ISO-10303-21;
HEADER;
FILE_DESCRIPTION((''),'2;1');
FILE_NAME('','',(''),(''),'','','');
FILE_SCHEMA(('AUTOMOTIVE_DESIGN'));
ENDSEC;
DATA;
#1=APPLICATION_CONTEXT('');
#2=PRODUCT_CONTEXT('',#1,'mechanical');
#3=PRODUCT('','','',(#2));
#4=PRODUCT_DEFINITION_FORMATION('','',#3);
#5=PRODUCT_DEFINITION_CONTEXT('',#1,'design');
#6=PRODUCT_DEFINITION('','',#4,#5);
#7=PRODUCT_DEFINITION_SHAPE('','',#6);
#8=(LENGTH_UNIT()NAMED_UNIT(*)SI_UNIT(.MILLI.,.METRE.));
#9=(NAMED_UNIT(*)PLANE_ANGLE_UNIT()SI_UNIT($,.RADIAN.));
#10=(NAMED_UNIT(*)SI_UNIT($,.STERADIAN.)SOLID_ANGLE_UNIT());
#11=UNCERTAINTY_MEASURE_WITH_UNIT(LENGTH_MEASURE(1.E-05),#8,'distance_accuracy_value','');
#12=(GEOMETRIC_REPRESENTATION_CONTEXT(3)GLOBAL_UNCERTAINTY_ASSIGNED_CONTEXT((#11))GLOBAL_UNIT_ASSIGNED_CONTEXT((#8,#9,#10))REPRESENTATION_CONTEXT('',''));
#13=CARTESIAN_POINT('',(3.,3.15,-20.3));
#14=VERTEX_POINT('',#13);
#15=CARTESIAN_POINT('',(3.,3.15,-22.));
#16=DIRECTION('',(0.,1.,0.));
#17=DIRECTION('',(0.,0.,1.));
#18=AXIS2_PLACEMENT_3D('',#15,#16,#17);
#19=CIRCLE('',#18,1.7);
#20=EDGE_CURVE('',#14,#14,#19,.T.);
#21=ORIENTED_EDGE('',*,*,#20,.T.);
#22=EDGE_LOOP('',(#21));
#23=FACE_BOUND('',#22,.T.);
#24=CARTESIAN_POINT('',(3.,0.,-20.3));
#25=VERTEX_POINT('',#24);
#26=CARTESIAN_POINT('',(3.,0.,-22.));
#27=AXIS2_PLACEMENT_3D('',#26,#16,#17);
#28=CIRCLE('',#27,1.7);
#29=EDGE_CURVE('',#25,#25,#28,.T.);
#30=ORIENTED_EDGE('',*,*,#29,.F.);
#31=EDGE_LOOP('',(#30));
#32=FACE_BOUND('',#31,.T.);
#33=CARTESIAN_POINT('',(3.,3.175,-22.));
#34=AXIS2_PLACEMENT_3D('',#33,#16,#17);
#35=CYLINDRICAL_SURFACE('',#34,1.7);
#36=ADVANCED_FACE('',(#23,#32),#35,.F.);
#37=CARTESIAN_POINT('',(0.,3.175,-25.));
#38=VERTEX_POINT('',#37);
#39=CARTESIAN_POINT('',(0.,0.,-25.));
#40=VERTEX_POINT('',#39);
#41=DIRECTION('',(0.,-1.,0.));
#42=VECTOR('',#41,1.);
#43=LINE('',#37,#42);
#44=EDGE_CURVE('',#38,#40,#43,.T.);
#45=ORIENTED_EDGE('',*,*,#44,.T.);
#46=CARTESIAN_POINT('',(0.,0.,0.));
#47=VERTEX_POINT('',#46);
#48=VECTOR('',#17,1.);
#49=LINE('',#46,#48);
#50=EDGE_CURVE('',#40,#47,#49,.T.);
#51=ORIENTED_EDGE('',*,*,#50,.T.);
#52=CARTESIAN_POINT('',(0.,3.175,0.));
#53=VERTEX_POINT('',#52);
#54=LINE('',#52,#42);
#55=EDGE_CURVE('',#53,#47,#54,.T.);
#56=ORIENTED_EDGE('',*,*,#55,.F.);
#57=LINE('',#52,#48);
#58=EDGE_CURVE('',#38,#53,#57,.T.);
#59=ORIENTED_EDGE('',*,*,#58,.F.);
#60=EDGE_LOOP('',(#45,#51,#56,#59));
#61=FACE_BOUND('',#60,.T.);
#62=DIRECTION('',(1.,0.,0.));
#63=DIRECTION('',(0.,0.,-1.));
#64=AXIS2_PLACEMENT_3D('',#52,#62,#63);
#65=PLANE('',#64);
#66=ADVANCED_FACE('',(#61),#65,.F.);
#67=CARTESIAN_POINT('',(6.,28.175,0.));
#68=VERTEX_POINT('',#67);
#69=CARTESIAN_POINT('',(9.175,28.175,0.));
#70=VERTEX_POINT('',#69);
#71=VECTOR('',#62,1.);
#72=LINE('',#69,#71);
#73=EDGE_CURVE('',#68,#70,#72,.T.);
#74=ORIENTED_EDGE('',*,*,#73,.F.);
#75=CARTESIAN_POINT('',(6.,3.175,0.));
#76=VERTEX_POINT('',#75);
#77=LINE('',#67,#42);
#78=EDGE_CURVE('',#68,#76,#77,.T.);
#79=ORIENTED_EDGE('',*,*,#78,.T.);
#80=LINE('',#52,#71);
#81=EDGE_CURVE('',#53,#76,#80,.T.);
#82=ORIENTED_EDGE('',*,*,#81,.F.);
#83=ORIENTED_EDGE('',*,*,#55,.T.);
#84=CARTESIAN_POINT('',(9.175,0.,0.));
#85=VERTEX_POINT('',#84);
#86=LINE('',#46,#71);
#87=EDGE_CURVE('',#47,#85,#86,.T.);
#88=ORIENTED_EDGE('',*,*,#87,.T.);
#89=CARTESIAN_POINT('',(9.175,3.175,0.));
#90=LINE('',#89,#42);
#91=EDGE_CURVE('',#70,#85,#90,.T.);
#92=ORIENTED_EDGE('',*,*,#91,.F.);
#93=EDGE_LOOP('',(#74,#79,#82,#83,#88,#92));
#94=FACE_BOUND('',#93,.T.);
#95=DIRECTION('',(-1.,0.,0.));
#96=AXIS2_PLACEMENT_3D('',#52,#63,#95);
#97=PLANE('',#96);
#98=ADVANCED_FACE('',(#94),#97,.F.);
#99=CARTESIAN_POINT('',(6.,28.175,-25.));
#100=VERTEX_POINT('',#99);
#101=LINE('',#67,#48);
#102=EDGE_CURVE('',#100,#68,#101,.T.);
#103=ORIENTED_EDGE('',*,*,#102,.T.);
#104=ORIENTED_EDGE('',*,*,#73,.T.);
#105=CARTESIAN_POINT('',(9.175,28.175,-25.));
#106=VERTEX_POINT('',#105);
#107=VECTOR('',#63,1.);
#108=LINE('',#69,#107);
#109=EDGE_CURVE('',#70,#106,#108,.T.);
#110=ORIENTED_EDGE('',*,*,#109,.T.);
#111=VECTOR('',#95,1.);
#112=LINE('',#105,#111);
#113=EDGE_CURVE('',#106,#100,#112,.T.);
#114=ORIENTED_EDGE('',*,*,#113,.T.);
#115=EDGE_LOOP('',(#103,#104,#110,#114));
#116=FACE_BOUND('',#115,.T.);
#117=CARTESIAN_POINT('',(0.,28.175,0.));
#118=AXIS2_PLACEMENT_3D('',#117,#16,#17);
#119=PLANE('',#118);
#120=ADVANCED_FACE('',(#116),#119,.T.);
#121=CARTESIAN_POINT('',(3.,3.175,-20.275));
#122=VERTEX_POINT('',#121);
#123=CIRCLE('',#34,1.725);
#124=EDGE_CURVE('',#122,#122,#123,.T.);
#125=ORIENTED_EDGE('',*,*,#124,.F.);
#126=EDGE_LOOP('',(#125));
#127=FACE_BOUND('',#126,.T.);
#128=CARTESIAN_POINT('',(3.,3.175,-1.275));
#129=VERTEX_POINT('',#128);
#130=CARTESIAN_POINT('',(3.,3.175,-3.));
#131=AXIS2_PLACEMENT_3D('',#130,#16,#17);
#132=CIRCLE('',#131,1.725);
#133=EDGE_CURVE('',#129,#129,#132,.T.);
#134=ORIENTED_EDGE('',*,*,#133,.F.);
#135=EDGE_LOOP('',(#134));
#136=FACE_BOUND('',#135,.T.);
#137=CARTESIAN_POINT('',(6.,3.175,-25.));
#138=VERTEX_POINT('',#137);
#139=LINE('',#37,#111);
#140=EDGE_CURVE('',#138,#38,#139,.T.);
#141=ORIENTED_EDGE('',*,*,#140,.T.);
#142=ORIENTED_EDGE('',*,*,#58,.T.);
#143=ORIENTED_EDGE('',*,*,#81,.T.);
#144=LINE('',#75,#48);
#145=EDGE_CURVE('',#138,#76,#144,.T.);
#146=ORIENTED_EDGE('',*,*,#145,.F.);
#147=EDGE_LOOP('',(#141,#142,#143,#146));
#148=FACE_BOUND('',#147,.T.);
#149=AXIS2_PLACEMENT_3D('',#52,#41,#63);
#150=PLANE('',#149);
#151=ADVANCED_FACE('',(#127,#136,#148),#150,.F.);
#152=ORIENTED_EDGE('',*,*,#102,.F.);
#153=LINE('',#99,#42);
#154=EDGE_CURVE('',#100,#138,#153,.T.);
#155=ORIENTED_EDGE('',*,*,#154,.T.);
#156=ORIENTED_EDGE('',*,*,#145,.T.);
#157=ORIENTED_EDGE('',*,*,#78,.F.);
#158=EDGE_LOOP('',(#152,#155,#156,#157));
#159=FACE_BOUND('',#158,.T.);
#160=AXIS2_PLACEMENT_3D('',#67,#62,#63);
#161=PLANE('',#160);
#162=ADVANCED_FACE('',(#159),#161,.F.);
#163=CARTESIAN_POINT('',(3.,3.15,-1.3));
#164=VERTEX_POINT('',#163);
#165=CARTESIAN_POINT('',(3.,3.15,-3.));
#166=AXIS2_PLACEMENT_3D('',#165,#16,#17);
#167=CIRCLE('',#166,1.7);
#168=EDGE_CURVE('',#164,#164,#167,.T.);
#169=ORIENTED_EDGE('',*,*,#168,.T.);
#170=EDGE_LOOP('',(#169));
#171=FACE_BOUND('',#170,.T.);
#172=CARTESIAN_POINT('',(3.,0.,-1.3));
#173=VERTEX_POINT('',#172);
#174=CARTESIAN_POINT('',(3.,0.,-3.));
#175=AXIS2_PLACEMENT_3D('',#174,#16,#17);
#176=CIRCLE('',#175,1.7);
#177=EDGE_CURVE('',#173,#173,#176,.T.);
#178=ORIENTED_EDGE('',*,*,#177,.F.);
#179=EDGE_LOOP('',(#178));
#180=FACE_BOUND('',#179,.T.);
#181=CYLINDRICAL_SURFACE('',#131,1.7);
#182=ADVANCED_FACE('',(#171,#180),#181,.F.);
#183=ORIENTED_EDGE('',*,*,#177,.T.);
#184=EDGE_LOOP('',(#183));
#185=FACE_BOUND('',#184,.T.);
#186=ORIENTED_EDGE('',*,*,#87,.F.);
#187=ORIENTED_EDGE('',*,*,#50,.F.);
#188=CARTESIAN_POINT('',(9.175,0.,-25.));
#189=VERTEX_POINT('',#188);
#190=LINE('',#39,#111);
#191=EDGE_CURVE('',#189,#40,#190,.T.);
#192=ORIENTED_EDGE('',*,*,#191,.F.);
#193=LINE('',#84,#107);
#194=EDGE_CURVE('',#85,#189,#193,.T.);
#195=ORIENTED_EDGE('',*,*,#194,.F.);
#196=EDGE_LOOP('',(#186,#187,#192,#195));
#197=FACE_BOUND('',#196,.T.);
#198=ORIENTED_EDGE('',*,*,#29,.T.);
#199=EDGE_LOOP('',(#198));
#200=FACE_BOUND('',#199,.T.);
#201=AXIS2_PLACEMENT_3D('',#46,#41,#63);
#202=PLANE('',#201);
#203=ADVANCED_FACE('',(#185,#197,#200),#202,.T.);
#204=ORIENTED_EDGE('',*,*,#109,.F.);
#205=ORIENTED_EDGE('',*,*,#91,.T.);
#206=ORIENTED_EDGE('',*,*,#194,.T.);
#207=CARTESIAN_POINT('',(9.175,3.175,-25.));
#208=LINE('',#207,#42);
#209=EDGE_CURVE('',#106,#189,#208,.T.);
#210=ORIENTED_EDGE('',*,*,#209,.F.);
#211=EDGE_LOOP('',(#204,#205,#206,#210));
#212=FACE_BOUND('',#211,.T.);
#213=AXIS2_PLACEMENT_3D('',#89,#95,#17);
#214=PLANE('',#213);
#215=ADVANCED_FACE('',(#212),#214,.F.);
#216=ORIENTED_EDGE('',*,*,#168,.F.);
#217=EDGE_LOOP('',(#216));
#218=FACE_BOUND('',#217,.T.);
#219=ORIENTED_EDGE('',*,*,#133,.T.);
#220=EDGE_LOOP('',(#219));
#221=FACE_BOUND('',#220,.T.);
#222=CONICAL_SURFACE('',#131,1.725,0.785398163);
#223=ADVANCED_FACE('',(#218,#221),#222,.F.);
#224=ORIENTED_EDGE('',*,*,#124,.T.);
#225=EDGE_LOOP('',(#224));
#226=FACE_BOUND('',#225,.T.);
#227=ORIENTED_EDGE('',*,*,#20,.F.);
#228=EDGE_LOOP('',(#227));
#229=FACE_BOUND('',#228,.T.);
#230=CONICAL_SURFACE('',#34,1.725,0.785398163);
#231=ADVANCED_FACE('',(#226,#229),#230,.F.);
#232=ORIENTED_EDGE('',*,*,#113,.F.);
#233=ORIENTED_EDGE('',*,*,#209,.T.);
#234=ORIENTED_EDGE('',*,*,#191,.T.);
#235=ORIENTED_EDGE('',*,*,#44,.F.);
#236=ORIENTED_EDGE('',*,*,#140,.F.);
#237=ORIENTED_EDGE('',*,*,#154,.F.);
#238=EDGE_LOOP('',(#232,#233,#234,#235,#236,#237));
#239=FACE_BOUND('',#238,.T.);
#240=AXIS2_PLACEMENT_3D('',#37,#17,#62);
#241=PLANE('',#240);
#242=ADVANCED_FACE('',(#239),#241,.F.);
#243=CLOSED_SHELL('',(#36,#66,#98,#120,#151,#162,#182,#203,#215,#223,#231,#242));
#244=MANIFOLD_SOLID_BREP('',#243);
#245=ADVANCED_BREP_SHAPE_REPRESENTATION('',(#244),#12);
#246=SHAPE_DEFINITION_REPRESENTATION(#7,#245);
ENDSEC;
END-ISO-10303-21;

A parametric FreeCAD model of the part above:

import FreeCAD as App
import Part
import Sketcher

V = App.Vector
Q = App.Units.Quantity

doc = App.newDocument("Part")
body = doc.addObject("PartDesign::Body", "Body")

# Sketch on XZ plane
sketch1 = body.newObject("Sketcher::SketchObject", "Sketch")
sketch1.AttachmentSupport = (doc.getObject("XZ_Plane"), [""])
sketch1.MapMode = "FlatFace"
sketch1.addGeometry([
    Part.LineSegment(V(0, -25, 0), V(0, 0, 0)),
    Part.LineSegment(V(0, 0, 0), V(9, 0, 0)),
    Part.LineSegment(V(9, 0, 0), V(9, -25, 0)),
    Part.LineSegment(V(9, -25, 0), V(0, -25, 0)),
], False)
sketch1.addConstraint([
    Sketcher.Constraint("Coincident", 0, 2, 1, 1),
    Sketcher.Constraint("Coincident", 1, 2, 2, 1),
    Sketcher.Constraint("Coincident", 2, 2, 3, 1),
    Sketcher.Constraint("Coincident", 3, 2, 0, 1),
    Sketcher.Constraint("Vertical", 0),
    Sketcher.Constraint("Horizontal", 1),
    Sketcher.Constraint("Vertical", 2),
    Sketcher.Constraint("Horizontal", 3),
    Sketcher.Constraint("Coincident", 0, 2, -1, 1),
    Sketcher.Constraint("DistanceY", 0, 1, 0, 2, Q("25 mm")),
    Sketcher.Constraint("DistanceX", 1, 1, 1, 2, Q("9.175 mm")),
])
pad1 = body.newObject("PartDesign::Pad", "Pad")
pad1.Profile = sketch1
pad1.Length = 3.175
pad1.Reversed = True

# Sketch on XZ plane
sketch2 = body.newObject("Sketcher::SketchObject", "Sketch001")
sketch2.AttachmentSupport = (doc.getObject("XZ_Plane"), [""])
sketch2.MapMode = "FlatFace"
sketch2.AttachmentOffset = App.Placement(V(0, 0, -3.175), App.Rotation())
sketch2.addGeometry([
    Part.LineSegment(V(6, -25, 0), V(6, 0, 0)),
    Part.LineSegment(V(6, 0, 0), V(9.2, 0, 0)),
    Part.LineSegment(V(9.2, 0, 0), V(9.2, -25, 0)),
    Part.LineSegment(V(9.2, -25, 0), V(6, -25, 0)),
], False)
sketch2.addConstraint([
    Sketcher.Constraint("Coincident", 0, 2, 1, 1),
    Sketcher.Constraint("Coincident", 1, 2, 2, 1),
    Sketcher.Constraint("Coincident", 2, 2, 3, 1),
    Sketcher.Constraint("Coincident", 3, 2, 0, 1),
    Sketcher.Constraint("Vertical", 0),
    Sketcher.Constraint("Horizontal", 1),
    Sketcher.Constraint("Vertical", 2),
    Sketcher.Constraint("Horizontal", 3),
    Sketcher.Constraint("PointOnObject", 0, 2, -1),
    Sketcher.Constraint("DistanceY", 0, 1, 0, 2, Q("25 mm")),
    Sketcher.Constraint("DistanceX", -1, 1, 0, 2, Q("6 mm")),
    Sketcher.Constraint("DistanceX", 1, 1, 1, 2, Q("3.175 mm")),
])
pad2 = body.newObject("PartDesign::Pad", "Pad001")
pad2.Profile = sketch2
pad2.Length = 25
pad2.Reversed = True

# Sketch on XZ plane
sketch3 = body.newObject("Sketcher::SketchObject", "Sketch002")
sketch3.AttachmentSupport = (doc.getObject("XZ_Plane"), [""])
sketch3.MapMode = "FlatFace"
sketch3.AttachmentOffset = App.Placement(V(0, 0, -3.175), App.Rotation())
sketch3.addGeometry([
    Part.Circle(V(3, -22, 0), V(0, 0, 1), 1.7),
    Part.Circle(V(3, -3, 0), V(0, 0, 1), 1.7),
], False)
sketch3.addConstraint([
    Sketcher.Constraint("Equal", 0, 1),
    Sketcher.Constraint("Vertical", 0, 3, 1, 3),
    Sketcher.Constraint("Diameter", 0, Q("3.4 mm")),
    Sketcher.Constraint("DistanceX", -1, 1, 0, 3, Q("3 mm")),
    Sketcher.Constraint("DistanceY", 0, 3, -1, 1, Q("22 mm")),
    Sketcher.Constraint("DistanceY", 1, 3, -1, 1, Q("3 mm")),
])
doc.recompute()
hole = body.newObject("PartDesign::Hole", "Hole")
hole.Profile = sketch3
hole.ThreadType = "None"
hole.Diameter = 3.4
hole.DepthType = "ThroughAll"
hole.HoleCutType = "Countersink"
hole.HoleCutDiameter = 3.45
hole.HoleCutCountersinkAngle = 90
hole.Reversed = True

doc.recompute()
